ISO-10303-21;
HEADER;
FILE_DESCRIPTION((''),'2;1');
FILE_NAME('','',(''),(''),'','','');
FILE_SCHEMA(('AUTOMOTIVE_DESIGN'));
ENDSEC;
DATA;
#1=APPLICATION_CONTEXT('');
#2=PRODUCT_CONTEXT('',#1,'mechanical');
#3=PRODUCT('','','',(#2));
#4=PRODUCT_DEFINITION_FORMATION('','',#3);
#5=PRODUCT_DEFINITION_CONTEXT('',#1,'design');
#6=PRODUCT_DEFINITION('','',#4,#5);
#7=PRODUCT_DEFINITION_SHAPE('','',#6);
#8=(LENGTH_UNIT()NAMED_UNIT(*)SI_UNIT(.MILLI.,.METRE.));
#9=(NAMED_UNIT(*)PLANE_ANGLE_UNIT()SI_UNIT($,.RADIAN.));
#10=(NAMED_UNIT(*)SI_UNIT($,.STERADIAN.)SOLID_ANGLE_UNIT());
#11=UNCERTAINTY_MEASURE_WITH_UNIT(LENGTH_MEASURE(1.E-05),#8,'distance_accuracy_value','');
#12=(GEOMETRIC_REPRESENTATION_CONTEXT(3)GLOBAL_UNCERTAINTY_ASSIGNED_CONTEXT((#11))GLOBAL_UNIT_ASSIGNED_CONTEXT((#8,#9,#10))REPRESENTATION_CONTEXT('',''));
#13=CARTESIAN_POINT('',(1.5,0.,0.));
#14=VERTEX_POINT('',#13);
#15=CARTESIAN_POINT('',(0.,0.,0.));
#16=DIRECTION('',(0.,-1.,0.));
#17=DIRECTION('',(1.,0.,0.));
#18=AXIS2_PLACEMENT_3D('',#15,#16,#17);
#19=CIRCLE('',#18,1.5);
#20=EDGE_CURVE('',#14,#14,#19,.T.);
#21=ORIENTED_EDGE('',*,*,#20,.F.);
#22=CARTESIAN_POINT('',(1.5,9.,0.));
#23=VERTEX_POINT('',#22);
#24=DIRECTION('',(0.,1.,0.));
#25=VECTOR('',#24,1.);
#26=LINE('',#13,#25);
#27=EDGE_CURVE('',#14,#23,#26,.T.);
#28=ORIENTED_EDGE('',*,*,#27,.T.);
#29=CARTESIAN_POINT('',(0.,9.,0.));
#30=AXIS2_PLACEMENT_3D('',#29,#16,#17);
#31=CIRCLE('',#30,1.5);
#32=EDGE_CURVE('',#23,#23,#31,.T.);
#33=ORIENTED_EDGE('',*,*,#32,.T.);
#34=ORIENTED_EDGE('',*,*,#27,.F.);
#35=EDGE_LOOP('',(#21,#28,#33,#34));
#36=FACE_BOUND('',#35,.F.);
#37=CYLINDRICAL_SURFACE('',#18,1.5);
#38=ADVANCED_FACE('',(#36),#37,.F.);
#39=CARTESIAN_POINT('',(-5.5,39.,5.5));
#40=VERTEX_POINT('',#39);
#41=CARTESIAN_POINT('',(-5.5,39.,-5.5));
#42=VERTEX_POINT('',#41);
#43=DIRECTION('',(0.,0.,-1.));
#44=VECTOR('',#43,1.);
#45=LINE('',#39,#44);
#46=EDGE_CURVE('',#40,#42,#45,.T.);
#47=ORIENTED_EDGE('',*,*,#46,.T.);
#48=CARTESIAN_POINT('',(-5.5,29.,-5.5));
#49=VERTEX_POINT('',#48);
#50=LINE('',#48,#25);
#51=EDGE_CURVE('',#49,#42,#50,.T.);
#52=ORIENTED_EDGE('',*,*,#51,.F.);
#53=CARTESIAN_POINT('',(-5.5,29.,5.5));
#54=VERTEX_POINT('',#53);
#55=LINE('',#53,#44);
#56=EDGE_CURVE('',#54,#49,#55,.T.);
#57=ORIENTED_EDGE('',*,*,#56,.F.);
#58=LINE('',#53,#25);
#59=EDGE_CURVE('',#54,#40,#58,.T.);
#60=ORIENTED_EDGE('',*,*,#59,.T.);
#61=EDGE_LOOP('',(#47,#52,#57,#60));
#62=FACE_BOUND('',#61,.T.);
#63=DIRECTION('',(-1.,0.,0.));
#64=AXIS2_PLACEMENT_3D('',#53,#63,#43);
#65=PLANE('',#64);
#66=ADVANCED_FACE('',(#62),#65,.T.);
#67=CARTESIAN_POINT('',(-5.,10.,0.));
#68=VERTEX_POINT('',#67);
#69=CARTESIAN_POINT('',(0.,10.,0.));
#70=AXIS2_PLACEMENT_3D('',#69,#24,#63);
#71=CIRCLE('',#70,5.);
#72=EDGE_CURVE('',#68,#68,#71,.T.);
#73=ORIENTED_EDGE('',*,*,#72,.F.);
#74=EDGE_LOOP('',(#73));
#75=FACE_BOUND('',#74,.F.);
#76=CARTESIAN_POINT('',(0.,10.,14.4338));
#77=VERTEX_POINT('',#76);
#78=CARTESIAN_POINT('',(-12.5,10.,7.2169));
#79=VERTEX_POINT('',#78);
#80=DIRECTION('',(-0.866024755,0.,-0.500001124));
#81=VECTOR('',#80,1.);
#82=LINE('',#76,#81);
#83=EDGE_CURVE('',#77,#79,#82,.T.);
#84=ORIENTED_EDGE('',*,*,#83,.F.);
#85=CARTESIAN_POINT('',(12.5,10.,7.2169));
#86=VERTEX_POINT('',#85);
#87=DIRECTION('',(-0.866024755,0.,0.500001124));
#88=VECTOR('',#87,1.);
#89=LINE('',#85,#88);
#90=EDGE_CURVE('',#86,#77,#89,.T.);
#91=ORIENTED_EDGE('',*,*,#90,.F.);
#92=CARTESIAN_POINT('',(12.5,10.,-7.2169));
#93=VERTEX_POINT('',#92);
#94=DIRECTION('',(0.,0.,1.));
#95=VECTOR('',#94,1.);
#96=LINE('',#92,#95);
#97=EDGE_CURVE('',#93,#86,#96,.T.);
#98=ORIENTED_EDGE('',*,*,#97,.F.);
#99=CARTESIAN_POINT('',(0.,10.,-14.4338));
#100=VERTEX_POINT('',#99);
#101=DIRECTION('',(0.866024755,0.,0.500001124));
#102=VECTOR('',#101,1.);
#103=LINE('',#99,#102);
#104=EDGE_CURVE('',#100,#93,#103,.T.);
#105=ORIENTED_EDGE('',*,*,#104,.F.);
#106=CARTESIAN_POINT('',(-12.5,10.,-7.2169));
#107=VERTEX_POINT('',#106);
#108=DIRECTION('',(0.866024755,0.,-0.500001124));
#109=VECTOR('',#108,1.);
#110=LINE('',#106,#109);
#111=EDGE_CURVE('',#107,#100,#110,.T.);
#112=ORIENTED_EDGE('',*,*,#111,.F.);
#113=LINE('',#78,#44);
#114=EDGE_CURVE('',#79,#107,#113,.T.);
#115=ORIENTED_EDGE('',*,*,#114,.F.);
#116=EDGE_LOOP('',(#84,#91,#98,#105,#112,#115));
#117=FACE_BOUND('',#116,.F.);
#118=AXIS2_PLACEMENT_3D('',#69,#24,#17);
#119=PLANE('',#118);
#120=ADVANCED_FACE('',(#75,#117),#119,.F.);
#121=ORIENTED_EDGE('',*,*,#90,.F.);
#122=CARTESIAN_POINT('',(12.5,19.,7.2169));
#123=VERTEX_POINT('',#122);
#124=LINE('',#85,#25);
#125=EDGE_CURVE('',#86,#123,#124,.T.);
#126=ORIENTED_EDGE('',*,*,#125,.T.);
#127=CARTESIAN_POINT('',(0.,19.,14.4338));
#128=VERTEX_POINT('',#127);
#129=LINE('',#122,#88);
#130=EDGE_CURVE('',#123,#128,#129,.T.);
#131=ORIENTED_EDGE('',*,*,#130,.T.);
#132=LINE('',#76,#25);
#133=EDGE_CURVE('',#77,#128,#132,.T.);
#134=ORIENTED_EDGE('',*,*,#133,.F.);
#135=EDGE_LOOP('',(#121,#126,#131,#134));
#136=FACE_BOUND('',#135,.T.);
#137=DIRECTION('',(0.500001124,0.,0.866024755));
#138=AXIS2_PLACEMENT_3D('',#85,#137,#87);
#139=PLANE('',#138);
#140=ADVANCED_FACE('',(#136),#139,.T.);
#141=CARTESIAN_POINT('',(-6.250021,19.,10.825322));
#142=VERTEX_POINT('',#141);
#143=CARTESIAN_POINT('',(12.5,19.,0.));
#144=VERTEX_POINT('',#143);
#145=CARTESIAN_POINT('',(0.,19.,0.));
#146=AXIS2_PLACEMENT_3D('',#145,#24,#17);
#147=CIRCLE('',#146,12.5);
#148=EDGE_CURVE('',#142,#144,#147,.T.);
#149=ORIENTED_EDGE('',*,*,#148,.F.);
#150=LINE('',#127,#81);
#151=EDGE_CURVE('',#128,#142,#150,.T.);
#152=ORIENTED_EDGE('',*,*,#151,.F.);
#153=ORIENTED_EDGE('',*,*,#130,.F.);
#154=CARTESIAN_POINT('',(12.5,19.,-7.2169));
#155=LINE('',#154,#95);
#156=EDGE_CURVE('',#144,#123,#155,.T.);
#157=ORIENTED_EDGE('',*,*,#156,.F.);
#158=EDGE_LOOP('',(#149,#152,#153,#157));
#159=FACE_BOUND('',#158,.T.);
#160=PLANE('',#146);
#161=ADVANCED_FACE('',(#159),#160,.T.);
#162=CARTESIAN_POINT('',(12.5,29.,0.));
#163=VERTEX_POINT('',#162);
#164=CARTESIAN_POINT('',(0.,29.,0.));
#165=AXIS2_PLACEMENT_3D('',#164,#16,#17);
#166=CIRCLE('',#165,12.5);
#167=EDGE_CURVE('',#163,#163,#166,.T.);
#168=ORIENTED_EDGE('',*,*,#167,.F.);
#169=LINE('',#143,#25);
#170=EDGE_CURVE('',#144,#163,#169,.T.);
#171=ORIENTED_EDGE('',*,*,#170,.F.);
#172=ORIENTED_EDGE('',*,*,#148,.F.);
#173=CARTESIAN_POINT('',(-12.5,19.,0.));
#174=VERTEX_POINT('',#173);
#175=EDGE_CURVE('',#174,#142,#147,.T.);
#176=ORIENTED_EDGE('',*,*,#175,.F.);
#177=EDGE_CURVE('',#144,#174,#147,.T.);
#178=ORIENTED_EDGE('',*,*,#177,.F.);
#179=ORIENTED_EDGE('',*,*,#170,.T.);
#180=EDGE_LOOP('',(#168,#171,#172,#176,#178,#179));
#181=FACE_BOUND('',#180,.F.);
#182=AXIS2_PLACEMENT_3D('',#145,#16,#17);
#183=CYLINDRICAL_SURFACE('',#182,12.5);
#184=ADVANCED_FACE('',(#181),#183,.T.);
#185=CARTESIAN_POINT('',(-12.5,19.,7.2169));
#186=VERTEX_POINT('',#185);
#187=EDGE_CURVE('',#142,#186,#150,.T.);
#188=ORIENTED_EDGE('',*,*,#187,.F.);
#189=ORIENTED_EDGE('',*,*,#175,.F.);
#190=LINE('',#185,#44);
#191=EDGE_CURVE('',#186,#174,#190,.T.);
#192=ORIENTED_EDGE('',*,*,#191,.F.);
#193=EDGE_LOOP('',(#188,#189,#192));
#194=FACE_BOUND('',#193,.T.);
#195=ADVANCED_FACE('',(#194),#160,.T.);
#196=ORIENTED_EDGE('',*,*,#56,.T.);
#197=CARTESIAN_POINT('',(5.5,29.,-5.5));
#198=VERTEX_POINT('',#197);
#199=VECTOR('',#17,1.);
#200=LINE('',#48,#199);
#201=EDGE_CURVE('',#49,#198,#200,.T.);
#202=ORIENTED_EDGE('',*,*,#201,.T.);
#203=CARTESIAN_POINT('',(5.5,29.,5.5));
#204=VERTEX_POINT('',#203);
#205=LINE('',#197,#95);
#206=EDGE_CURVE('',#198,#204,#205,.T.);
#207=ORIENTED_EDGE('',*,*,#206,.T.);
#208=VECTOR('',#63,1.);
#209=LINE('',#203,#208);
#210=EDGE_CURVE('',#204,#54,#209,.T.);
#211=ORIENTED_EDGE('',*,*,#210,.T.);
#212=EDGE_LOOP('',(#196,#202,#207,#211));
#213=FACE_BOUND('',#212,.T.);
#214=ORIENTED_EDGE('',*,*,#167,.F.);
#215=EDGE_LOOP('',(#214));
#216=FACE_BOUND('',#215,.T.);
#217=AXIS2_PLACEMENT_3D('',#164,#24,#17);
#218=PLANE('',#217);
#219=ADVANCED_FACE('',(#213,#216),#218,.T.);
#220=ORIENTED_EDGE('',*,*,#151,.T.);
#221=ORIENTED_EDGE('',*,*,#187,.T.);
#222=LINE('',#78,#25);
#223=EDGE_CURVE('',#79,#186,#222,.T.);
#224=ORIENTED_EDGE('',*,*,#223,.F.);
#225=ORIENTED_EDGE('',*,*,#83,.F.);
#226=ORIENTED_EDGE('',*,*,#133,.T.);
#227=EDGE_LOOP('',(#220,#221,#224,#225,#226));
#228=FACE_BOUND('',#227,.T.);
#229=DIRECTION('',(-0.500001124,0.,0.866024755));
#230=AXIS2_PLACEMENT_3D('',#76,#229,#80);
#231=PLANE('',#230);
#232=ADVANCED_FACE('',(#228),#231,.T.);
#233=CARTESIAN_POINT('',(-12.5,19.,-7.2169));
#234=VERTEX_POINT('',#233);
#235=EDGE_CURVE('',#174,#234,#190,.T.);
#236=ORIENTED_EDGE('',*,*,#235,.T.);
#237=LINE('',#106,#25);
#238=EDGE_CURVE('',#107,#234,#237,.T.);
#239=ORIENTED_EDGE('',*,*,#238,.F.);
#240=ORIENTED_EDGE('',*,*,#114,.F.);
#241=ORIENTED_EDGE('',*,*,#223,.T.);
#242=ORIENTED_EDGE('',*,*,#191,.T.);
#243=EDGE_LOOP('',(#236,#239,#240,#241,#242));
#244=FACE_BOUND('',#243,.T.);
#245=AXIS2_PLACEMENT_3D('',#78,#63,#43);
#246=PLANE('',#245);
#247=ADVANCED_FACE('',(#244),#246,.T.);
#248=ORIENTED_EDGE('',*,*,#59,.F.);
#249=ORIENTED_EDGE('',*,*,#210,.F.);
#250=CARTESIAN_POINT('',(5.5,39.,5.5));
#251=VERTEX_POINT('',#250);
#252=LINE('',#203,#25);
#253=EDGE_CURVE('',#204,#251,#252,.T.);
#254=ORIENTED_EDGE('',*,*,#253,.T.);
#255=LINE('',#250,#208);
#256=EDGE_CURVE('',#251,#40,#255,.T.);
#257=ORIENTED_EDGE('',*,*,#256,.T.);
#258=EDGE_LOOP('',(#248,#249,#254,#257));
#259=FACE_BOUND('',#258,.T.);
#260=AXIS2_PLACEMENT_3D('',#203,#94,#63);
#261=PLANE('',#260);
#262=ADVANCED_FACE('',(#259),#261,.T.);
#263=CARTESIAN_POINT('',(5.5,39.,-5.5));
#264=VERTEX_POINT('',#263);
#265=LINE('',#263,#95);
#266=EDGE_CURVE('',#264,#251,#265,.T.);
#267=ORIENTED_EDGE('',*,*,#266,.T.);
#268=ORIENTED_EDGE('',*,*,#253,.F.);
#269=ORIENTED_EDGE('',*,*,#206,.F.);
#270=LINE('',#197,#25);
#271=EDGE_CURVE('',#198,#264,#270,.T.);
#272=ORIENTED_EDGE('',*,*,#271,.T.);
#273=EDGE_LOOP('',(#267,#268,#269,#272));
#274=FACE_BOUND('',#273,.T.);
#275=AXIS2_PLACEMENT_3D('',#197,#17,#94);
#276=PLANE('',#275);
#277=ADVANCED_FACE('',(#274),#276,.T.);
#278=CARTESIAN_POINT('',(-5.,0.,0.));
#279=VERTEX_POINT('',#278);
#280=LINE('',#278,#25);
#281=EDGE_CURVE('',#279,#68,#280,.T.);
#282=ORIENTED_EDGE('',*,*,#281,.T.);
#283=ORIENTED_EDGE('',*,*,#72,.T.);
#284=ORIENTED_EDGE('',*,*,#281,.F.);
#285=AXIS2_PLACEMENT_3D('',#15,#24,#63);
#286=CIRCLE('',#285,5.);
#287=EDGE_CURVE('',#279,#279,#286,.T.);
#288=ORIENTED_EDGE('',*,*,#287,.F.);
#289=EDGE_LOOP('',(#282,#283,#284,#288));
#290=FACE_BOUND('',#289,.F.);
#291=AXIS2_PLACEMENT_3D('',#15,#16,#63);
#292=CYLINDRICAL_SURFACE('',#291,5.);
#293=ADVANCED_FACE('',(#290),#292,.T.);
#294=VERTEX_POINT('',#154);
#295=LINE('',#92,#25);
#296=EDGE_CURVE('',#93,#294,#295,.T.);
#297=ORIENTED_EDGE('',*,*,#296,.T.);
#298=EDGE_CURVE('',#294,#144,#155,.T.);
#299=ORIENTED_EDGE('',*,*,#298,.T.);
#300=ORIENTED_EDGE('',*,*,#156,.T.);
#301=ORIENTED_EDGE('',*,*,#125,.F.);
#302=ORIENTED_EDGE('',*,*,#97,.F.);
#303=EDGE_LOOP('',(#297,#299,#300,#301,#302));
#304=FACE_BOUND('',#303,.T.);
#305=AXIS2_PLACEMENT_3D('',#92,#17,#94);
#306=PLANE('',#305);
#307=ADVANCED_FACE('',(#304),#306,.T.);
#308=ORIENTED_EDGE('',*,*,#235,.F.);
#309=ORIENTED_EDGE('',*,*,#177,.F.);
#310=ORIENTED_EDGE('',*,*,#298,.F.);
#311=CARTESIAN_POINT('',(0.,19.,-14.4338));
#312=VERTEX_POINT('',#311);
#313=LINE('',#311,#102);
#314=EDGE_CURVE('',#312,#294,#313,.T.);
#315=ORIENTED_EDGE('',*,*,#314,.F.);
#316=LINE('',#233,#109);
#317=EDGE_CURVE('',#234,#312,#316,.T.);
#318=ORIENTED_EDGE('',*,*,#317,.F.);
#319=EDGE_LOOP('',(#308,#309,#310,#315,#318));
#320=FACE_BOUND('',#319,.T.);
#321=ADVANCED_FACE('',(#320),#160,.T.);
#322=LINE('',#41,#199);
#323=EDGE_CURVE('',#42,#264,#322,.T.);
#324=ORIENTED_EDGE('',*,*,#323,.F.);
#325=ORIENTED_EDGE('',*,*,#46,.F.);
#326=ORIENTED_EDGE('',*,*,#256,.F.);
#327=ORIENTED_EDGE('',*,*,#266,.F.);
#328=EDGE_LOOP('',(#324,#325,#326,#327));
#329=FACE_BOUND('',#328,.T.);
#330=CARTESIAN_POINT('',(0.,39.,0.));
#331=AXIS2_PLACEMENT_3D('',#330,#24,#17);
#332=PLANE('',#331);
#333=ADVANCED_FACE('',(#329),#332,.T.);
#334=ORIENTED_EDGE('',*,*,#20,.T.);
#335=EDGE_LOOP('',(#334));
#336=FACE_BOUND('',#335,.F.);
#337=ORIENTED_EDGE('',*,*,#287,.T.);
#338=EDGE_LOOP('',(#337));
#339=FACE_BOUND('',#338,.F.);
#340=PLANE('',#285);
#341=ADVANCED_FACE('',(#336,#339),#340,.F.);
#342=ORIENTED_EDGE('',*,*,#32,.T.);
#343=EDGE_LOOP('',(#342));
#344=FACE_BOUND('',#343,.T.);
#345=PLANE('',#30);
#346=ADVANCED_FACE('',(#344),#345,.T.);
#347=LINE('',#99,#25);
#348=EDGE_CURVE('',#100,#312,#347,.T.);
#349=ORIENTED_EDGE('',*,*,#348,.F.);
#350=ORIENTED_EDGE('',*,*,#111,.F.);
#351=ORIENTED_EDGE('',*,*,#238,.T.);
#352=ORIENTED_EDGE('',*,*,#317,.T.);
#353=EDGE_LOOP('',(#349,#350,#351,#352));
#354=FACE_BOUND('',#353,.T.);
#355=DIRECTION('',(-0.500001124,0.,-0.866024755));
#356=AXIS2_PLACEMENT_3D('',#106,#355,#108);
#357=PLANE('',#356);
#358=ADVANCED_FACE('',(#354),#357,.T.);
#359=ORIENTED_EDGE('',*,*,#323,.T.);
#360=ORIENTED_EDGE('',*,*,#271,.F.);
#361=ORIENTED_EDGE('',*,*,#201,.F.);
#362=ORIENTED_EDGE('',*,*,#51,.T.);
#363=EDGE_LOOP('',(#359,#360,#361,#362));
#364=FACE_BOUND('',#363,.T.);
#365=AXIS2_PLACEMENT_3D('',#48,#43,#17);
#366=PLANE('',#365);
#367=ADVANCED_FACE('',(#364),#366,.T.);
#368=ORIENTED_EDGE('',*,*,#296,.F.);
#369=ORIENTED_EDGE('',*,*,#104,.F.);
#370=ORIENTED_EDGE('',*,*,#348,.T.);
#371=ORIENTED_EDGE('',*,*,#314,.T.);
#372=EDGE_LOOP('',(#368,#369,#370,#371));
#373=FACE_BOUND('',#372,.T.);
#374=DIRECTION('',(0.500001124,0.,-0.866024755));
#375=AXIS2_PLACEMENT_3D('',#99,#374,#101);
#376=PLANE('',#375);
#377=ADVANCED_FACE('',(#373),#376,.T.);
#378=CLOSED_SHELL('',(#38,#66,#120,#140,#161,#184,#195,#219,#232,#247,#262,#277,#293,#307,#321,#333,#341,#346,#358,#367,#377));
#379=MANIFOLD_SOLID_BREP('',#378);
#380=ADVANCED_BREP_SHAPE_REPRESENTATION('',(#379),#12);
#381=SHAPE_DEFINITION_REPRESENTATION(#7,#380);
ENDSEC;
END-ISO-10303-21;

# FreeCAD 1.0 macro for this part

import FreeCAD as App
import Part
import Sketcher
Q = App.Units.Quantity


def add_polygon(sketch, points):
    """Adds a closed chain of lines whose ends are joined by coincident constraints."""
    first, n = sketch.GeometryCount, len(points)
    for a, b in zip(points, points[1:] + points[:1]):
        sketch.addGeometry(Part.LineSegment(App.Vector(*a, 0), App.Vector(*b, 0)), False)
    for i in range(n):
        sketch.addConstraint(Sketcher.Constraint("Coincident", first + i, 2, first + (i + 1) % n, 1))

doc = App.newDocument("Part")
params = doc.addObject("Spreadsheet::Sheet", "Params")
for row, (alias, value) in enumerate([
    ("sketch1_diameter", "10 mm"),
    ("pad1_length", "10 mm"),
    ("pad2_length", "9 mm"),
    ("sketch3_diameter", "25 mm"),
    ("pad3_length", "10 mm"),
    ("sketch4_width", "11 mm"),
    ("pad4_length", "10 mm"),
    ("sketch5_diameter", "3 mm"),
    ("pocket1_length", "9 mm"),
], start=1):
    params.set(f"A{row}", alias)
    params.set(f"B{row}", "=" + value)
    params.setAlias(f"B{row}", alias)

body = doc.addObject("PartDesign::Body", "Body")

# Sketch on XZ plane
sketch1 = body.newObject("Sketcher::SketchObject", "Sketch")
sketch1.AttachmentSupport = (doc.getObject("XZ_Plane"), [""])
sketch1.MapMode = "FlatFace"
sketch1.addGeometry(Part.Circle(App.Vector(0, 0, 0), App.Vector(0, 0, 1), 5), False)
sketch1.addConstraint(Sketcher.Constraint("Coincident", 0, 3, -1, 1))
sketch1.addConstraint(Sketcher.Constraint("Diameter", 0, Q("10 mm")))
sketch1.setExpression("Constraints[1]", "Params.sketch1_diameter")
pad1 = body.newObject("PartDesign::Pad", "Pad")
pad1.Profile = sketch1
pad1.setExpression("Length", "Params.pad1_length")
pad1.Reversed = True

# Sketch on XZ plane
sketch2 = body.newObject("Sketcher::SketchObject", "Sketch001")
sketch2.AttachmentSupport = (doc.getObject("XZ_Plane"), [""])
sketch2.MapMode = "FlatFace"
sketch2.AttachmentOffset = App.Placement(App.Vector(0, 0, -10), App.Rotation())
add_polygon(sketch2, [(-12, 7), (0, 14), (12, 7), (12, -7), (0, -14), (-12, -7)])  # lines 0-5
sketch2.addConstraint(Sketcher.Constraint("Vertical", 2))
sketch2.addConstraint(Sketcher.Constraint("Vertical", 5))
sketch2.addConstraint(Sketcher.Constraint("Symmetric", 0, 2, 3, 2, -1, 1))
sketch2.addConstraint(Sketcher.Constraint("Symmetric", 1, 2, 4, 2, -1, 1))
sketch2.addConstraint(Sketcher.Constraint("PointOnObject", 0, 2, -2))
sketch2.addConstraint(Sketcher.Constraint("Parallel", 0, 3))
sketch2.addConstraint(Sketcher.Constraint("Horizontal", 2, 2, 4, 2))
sketch2.addConstraint(Sketcher.Constraint("DistanceX", 4, 2, 2, 2, Q("25 mm")))
sketch2.addConstraint(Sketcher.Constraint("Angle", 0, Q("30 deg")))
sketch2.addConstraint(Sketcher.Constraint("DistanceY", 2, 2, 2, 1, Q("14.4338 mm")))
pad2 = body.newObject("PartDesign::Pad", "Pad001")
pad2.Profile = sketch2
pad2.setExpression("Length", "Params.pad2_length")
pad2.Reversed = True

# Sketch on XZ plane
sketch3 = body.newObject("Sketcher::SketchObject", "Sketch002")
sketch3.AttachmentSupport = (doc.getObject("XZ_Plane"), [""])
sketch3.MapMode = "FlatFace"
sketch3.AttachmentOffset = App.Placement(App.Vector(0, 0, -19), App.Rotation())
sketch3.addGeometry(Part.Circle(App.Vector(0, 0, 0), App.Vector(0, 0, 1), 12), False)
sketch3.addConstraint(Sketcher.Constraint("Coincident", 0, 3, -1, 1))
sketch3.addConstraint(Sketcher.Constraint("Diameter", 0, Q("25 mm")))
sketch3.setExpression("Constraints[1]", "Params.sketch3_diameter")
pad3 = body.newObject("PartDesign::Pad", "Pad002")
pad3.Profile = sketch3
pad3.setExpression("Length", "Params.pad3_length")
pad3.Reversed = True

# Sketch on XZ plane
sketch4 = body.newObject("Sketcher::SketchObject", "Sketch003")
sketch4.AttachmentSupport = (doc.getObject("XZ_Plane"), [""])
sketch4.MapMode = "FlatFace"
sketch4.AttachmentOffset = App.Placement(App.Vector(0, 0, -29), App.Rotation())
add_polygon(sketch4, [(-6, 6), (6, 6), (6, -6), (-6, -6)])  # lines 0-3
sketch4.addConstraint(Sketcher.Constraint("Horizontal", 0))
sketch4.addConstraint(Sketcher.Constraint("Vertical", 1))
sketch4.addConstraint(Sketcher.Constraint("Horizontal", 2))
sketch4.addConstraint(Sketcher.Constraint("Vertical", 3))
sketch4.addConstraint(Sketcher.Constraint("Symmetric", 0, 2, 2, 2, -1, 1))
sketch4.addConstraint(Sketcher.Constraint("Equal", 2, 1))
sketch4.addConstraint(Sketcher.Constraint("DistanceX", 0, 1, 0, 2, Q("11 mm")))
sketch4.setExpression("Constraints[10]", "Params.sketch4_width")
pad4 = body.newObject("PartDesign::Pad", "Pad003")
pad4.Profile = sketch4
pad4.setExpression("Length", "Params.pad4_length")
pad4.Reversed = True

# Sketch on XZ plane
sketch5 = body.newObject("Sketcher::SketchObject", "Sketch004")
sketch5.AttachmentSupport = (doc.getObject("XZ_Plane"), [""])
sketch5.MapMode = "FlatFace"
sketch5.addGeometry(Part.Circle(App.Vector(0, 0, 0), App.Vector(0, 0, 1), 1.5), False)
sketch5.addConstraint(Sketcher.Constraint("Coincident", 0, 3, -1, 1))
sketch5.addConstraint(Sketcher.Constraint("Diameter", 0, Q("3 mm")))
sketch5.setExpression("Constraints[1]", "Params.sketch5_diameter")
pocket1 = body.newObject("PartDesign::Pocket", "Pocket")
pocket1.Profile = sketch5
pocket1.setExpression("Length", "Params.pocket1_length")

doc.recompute()
